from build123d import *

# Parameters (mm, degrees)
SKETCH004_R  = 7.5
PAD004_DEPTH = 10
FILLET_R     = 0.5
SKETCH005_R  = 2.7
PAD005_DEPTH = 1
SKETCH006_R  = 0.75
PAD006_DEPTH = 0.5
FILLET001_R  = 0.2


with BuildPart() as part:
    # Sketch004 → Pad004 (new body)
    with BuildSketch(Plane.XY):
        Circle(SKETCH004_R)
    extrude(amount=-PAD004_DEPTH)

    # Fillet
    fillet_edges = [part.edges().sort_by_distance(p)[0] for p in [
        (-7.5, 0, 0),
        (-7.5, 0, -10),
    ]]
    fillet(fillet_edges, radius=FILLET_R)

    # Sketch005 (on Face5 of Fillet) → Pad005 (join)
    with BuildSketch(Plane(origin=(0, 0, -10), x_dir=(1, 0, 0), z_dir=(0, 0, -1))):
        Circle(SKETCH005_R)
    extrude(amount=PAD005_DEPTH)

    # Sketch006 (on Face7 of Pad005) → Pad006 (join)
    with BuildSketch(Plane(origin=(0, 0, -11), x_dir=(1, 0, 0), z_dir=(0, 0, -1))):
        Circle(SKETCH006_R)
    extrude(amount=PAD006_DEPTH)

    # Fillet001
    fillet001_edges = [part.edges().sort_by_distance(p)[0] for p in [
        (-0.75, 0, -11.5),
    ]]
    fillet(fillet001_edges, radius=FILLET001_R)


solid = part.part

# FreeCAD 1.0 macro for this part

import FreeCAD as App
import Part
import Sketcher

V = App.Vector
Q = App.Units.Quantity


def edges_at(feature, points):
    """Names of the edges that pass closest to the given points."""
    edges = feature.Shape.Edges
    near = lambda p: min(range(len(edges)), key=lambda i: edges[i].distToShape(Part.Vertex(*p))[0])
    return sorted({f"Edge{near(p) + 1}" for p in points})

doc = App.newDocument("Part")
body = doc.addObject("PartDesign::Body", "Body")

# Sketch on XY plane
sketch1 = doc.addObject("Sketcher::SketchObject", "Sketch")
body.addObject(sketch1)
sketch1.AttachmentSupport = (doc.XY_Plane, [""])
sketch1.MapMode = "FlatFace"
sketch1.addGeometry(Part.Circle(V(0, 0, 0), V(0, 0, 1), 7.5), False)
sketch1.addConstraint(Sketcher.Constraint("Coincident", 0, 3, -1, 1))
sketch1.addConstraint(Sketcher.Constraint("Diameter", 0, Q("15 mm")))
pad1 = doc.addObject("PartDesign::Pad", "Pad")
body.addObject(pad1)
pad1.Profile = sketch1
pad1.Length = 10
pad1.Reversed = True
doc.recompute()

fillet = doc.addObject("PartDesign::Fillet", "Fillet")
body.addObject(fillet)
fillet.Base = (pad1, edges_at(pad1, [(-7.5, 0, 0), (-7.5, 0, -10)]))
fillet.Radius = 0.5

# Sketch on XY plane
sketch2 = doc.addObject("Sketcher::SketchObject", "Sketch001")
body.addObject(sketch2)
sketch2.AttachmentSupport = (doc.XY_Plane, [""])
sketch2.MapMode = "FlatFace"
sketch2.AttachmentOffset = App.Placement(V(0, 0, -10), App.Rotation())
sketch2.addGeometry(Part.Circle(V(0, 0, 0), V(0, 0, 1), 2.7), False)
sketch2.addConstraint(Sketcher.Constraint("Coincident", 0, 3, -1, 1))
sketch2.addConstraint(Sketcher.Constraint("Diameter", 0, Q("5.4 mm")))
pad2 = doc.addObject("PartDesign::Pad", "Pad001")
body.addObject(pad2)
pad2.Profile = sketch2
pad2.Length = 1
pad2.Reversed = True

# Sketch on XY plane
sketch3 = doc.addObject("Sketcher::SketchObject", "Sketch002")
body.addObject(sketch3)
sketch3.AttachmentSupport = (doc.XY_Plane, [""])
sketch3.MapMode = "FlatFace"
sketch3.AttachmentOffset = App.Placement(V(0, 0, -11), App.Rotation())
sketch3.addGeometry(Part.Circle(V(0, 0, 0), V(0, 0, 1), 0.75), False)
sketch3.addConstraint(Sketcher.Constraint("Coincident", 0, 3, -1, 1))
sketch3.addConstraint(Sketcher.Constraint("Diameter", 0, Q("1.5 mm")))
pad3 = doc.addObject("PartDesign::Pad", "Pad002")
body.addObject(pad3)
pad3.Profile = sketch3
pad3.Length = 0.5
pad3.Reversed = True
doc.recompute()

fillet2 = doc.addObject("PartDesign::Fillet", "Fillet001")
body.addObject(fillet2)
fillet2.Base = (pad3, edges_at(pad3, [(-0.75, 0, -11.5)]))
fillet2.Radius = 0.2

doc.recompute()
